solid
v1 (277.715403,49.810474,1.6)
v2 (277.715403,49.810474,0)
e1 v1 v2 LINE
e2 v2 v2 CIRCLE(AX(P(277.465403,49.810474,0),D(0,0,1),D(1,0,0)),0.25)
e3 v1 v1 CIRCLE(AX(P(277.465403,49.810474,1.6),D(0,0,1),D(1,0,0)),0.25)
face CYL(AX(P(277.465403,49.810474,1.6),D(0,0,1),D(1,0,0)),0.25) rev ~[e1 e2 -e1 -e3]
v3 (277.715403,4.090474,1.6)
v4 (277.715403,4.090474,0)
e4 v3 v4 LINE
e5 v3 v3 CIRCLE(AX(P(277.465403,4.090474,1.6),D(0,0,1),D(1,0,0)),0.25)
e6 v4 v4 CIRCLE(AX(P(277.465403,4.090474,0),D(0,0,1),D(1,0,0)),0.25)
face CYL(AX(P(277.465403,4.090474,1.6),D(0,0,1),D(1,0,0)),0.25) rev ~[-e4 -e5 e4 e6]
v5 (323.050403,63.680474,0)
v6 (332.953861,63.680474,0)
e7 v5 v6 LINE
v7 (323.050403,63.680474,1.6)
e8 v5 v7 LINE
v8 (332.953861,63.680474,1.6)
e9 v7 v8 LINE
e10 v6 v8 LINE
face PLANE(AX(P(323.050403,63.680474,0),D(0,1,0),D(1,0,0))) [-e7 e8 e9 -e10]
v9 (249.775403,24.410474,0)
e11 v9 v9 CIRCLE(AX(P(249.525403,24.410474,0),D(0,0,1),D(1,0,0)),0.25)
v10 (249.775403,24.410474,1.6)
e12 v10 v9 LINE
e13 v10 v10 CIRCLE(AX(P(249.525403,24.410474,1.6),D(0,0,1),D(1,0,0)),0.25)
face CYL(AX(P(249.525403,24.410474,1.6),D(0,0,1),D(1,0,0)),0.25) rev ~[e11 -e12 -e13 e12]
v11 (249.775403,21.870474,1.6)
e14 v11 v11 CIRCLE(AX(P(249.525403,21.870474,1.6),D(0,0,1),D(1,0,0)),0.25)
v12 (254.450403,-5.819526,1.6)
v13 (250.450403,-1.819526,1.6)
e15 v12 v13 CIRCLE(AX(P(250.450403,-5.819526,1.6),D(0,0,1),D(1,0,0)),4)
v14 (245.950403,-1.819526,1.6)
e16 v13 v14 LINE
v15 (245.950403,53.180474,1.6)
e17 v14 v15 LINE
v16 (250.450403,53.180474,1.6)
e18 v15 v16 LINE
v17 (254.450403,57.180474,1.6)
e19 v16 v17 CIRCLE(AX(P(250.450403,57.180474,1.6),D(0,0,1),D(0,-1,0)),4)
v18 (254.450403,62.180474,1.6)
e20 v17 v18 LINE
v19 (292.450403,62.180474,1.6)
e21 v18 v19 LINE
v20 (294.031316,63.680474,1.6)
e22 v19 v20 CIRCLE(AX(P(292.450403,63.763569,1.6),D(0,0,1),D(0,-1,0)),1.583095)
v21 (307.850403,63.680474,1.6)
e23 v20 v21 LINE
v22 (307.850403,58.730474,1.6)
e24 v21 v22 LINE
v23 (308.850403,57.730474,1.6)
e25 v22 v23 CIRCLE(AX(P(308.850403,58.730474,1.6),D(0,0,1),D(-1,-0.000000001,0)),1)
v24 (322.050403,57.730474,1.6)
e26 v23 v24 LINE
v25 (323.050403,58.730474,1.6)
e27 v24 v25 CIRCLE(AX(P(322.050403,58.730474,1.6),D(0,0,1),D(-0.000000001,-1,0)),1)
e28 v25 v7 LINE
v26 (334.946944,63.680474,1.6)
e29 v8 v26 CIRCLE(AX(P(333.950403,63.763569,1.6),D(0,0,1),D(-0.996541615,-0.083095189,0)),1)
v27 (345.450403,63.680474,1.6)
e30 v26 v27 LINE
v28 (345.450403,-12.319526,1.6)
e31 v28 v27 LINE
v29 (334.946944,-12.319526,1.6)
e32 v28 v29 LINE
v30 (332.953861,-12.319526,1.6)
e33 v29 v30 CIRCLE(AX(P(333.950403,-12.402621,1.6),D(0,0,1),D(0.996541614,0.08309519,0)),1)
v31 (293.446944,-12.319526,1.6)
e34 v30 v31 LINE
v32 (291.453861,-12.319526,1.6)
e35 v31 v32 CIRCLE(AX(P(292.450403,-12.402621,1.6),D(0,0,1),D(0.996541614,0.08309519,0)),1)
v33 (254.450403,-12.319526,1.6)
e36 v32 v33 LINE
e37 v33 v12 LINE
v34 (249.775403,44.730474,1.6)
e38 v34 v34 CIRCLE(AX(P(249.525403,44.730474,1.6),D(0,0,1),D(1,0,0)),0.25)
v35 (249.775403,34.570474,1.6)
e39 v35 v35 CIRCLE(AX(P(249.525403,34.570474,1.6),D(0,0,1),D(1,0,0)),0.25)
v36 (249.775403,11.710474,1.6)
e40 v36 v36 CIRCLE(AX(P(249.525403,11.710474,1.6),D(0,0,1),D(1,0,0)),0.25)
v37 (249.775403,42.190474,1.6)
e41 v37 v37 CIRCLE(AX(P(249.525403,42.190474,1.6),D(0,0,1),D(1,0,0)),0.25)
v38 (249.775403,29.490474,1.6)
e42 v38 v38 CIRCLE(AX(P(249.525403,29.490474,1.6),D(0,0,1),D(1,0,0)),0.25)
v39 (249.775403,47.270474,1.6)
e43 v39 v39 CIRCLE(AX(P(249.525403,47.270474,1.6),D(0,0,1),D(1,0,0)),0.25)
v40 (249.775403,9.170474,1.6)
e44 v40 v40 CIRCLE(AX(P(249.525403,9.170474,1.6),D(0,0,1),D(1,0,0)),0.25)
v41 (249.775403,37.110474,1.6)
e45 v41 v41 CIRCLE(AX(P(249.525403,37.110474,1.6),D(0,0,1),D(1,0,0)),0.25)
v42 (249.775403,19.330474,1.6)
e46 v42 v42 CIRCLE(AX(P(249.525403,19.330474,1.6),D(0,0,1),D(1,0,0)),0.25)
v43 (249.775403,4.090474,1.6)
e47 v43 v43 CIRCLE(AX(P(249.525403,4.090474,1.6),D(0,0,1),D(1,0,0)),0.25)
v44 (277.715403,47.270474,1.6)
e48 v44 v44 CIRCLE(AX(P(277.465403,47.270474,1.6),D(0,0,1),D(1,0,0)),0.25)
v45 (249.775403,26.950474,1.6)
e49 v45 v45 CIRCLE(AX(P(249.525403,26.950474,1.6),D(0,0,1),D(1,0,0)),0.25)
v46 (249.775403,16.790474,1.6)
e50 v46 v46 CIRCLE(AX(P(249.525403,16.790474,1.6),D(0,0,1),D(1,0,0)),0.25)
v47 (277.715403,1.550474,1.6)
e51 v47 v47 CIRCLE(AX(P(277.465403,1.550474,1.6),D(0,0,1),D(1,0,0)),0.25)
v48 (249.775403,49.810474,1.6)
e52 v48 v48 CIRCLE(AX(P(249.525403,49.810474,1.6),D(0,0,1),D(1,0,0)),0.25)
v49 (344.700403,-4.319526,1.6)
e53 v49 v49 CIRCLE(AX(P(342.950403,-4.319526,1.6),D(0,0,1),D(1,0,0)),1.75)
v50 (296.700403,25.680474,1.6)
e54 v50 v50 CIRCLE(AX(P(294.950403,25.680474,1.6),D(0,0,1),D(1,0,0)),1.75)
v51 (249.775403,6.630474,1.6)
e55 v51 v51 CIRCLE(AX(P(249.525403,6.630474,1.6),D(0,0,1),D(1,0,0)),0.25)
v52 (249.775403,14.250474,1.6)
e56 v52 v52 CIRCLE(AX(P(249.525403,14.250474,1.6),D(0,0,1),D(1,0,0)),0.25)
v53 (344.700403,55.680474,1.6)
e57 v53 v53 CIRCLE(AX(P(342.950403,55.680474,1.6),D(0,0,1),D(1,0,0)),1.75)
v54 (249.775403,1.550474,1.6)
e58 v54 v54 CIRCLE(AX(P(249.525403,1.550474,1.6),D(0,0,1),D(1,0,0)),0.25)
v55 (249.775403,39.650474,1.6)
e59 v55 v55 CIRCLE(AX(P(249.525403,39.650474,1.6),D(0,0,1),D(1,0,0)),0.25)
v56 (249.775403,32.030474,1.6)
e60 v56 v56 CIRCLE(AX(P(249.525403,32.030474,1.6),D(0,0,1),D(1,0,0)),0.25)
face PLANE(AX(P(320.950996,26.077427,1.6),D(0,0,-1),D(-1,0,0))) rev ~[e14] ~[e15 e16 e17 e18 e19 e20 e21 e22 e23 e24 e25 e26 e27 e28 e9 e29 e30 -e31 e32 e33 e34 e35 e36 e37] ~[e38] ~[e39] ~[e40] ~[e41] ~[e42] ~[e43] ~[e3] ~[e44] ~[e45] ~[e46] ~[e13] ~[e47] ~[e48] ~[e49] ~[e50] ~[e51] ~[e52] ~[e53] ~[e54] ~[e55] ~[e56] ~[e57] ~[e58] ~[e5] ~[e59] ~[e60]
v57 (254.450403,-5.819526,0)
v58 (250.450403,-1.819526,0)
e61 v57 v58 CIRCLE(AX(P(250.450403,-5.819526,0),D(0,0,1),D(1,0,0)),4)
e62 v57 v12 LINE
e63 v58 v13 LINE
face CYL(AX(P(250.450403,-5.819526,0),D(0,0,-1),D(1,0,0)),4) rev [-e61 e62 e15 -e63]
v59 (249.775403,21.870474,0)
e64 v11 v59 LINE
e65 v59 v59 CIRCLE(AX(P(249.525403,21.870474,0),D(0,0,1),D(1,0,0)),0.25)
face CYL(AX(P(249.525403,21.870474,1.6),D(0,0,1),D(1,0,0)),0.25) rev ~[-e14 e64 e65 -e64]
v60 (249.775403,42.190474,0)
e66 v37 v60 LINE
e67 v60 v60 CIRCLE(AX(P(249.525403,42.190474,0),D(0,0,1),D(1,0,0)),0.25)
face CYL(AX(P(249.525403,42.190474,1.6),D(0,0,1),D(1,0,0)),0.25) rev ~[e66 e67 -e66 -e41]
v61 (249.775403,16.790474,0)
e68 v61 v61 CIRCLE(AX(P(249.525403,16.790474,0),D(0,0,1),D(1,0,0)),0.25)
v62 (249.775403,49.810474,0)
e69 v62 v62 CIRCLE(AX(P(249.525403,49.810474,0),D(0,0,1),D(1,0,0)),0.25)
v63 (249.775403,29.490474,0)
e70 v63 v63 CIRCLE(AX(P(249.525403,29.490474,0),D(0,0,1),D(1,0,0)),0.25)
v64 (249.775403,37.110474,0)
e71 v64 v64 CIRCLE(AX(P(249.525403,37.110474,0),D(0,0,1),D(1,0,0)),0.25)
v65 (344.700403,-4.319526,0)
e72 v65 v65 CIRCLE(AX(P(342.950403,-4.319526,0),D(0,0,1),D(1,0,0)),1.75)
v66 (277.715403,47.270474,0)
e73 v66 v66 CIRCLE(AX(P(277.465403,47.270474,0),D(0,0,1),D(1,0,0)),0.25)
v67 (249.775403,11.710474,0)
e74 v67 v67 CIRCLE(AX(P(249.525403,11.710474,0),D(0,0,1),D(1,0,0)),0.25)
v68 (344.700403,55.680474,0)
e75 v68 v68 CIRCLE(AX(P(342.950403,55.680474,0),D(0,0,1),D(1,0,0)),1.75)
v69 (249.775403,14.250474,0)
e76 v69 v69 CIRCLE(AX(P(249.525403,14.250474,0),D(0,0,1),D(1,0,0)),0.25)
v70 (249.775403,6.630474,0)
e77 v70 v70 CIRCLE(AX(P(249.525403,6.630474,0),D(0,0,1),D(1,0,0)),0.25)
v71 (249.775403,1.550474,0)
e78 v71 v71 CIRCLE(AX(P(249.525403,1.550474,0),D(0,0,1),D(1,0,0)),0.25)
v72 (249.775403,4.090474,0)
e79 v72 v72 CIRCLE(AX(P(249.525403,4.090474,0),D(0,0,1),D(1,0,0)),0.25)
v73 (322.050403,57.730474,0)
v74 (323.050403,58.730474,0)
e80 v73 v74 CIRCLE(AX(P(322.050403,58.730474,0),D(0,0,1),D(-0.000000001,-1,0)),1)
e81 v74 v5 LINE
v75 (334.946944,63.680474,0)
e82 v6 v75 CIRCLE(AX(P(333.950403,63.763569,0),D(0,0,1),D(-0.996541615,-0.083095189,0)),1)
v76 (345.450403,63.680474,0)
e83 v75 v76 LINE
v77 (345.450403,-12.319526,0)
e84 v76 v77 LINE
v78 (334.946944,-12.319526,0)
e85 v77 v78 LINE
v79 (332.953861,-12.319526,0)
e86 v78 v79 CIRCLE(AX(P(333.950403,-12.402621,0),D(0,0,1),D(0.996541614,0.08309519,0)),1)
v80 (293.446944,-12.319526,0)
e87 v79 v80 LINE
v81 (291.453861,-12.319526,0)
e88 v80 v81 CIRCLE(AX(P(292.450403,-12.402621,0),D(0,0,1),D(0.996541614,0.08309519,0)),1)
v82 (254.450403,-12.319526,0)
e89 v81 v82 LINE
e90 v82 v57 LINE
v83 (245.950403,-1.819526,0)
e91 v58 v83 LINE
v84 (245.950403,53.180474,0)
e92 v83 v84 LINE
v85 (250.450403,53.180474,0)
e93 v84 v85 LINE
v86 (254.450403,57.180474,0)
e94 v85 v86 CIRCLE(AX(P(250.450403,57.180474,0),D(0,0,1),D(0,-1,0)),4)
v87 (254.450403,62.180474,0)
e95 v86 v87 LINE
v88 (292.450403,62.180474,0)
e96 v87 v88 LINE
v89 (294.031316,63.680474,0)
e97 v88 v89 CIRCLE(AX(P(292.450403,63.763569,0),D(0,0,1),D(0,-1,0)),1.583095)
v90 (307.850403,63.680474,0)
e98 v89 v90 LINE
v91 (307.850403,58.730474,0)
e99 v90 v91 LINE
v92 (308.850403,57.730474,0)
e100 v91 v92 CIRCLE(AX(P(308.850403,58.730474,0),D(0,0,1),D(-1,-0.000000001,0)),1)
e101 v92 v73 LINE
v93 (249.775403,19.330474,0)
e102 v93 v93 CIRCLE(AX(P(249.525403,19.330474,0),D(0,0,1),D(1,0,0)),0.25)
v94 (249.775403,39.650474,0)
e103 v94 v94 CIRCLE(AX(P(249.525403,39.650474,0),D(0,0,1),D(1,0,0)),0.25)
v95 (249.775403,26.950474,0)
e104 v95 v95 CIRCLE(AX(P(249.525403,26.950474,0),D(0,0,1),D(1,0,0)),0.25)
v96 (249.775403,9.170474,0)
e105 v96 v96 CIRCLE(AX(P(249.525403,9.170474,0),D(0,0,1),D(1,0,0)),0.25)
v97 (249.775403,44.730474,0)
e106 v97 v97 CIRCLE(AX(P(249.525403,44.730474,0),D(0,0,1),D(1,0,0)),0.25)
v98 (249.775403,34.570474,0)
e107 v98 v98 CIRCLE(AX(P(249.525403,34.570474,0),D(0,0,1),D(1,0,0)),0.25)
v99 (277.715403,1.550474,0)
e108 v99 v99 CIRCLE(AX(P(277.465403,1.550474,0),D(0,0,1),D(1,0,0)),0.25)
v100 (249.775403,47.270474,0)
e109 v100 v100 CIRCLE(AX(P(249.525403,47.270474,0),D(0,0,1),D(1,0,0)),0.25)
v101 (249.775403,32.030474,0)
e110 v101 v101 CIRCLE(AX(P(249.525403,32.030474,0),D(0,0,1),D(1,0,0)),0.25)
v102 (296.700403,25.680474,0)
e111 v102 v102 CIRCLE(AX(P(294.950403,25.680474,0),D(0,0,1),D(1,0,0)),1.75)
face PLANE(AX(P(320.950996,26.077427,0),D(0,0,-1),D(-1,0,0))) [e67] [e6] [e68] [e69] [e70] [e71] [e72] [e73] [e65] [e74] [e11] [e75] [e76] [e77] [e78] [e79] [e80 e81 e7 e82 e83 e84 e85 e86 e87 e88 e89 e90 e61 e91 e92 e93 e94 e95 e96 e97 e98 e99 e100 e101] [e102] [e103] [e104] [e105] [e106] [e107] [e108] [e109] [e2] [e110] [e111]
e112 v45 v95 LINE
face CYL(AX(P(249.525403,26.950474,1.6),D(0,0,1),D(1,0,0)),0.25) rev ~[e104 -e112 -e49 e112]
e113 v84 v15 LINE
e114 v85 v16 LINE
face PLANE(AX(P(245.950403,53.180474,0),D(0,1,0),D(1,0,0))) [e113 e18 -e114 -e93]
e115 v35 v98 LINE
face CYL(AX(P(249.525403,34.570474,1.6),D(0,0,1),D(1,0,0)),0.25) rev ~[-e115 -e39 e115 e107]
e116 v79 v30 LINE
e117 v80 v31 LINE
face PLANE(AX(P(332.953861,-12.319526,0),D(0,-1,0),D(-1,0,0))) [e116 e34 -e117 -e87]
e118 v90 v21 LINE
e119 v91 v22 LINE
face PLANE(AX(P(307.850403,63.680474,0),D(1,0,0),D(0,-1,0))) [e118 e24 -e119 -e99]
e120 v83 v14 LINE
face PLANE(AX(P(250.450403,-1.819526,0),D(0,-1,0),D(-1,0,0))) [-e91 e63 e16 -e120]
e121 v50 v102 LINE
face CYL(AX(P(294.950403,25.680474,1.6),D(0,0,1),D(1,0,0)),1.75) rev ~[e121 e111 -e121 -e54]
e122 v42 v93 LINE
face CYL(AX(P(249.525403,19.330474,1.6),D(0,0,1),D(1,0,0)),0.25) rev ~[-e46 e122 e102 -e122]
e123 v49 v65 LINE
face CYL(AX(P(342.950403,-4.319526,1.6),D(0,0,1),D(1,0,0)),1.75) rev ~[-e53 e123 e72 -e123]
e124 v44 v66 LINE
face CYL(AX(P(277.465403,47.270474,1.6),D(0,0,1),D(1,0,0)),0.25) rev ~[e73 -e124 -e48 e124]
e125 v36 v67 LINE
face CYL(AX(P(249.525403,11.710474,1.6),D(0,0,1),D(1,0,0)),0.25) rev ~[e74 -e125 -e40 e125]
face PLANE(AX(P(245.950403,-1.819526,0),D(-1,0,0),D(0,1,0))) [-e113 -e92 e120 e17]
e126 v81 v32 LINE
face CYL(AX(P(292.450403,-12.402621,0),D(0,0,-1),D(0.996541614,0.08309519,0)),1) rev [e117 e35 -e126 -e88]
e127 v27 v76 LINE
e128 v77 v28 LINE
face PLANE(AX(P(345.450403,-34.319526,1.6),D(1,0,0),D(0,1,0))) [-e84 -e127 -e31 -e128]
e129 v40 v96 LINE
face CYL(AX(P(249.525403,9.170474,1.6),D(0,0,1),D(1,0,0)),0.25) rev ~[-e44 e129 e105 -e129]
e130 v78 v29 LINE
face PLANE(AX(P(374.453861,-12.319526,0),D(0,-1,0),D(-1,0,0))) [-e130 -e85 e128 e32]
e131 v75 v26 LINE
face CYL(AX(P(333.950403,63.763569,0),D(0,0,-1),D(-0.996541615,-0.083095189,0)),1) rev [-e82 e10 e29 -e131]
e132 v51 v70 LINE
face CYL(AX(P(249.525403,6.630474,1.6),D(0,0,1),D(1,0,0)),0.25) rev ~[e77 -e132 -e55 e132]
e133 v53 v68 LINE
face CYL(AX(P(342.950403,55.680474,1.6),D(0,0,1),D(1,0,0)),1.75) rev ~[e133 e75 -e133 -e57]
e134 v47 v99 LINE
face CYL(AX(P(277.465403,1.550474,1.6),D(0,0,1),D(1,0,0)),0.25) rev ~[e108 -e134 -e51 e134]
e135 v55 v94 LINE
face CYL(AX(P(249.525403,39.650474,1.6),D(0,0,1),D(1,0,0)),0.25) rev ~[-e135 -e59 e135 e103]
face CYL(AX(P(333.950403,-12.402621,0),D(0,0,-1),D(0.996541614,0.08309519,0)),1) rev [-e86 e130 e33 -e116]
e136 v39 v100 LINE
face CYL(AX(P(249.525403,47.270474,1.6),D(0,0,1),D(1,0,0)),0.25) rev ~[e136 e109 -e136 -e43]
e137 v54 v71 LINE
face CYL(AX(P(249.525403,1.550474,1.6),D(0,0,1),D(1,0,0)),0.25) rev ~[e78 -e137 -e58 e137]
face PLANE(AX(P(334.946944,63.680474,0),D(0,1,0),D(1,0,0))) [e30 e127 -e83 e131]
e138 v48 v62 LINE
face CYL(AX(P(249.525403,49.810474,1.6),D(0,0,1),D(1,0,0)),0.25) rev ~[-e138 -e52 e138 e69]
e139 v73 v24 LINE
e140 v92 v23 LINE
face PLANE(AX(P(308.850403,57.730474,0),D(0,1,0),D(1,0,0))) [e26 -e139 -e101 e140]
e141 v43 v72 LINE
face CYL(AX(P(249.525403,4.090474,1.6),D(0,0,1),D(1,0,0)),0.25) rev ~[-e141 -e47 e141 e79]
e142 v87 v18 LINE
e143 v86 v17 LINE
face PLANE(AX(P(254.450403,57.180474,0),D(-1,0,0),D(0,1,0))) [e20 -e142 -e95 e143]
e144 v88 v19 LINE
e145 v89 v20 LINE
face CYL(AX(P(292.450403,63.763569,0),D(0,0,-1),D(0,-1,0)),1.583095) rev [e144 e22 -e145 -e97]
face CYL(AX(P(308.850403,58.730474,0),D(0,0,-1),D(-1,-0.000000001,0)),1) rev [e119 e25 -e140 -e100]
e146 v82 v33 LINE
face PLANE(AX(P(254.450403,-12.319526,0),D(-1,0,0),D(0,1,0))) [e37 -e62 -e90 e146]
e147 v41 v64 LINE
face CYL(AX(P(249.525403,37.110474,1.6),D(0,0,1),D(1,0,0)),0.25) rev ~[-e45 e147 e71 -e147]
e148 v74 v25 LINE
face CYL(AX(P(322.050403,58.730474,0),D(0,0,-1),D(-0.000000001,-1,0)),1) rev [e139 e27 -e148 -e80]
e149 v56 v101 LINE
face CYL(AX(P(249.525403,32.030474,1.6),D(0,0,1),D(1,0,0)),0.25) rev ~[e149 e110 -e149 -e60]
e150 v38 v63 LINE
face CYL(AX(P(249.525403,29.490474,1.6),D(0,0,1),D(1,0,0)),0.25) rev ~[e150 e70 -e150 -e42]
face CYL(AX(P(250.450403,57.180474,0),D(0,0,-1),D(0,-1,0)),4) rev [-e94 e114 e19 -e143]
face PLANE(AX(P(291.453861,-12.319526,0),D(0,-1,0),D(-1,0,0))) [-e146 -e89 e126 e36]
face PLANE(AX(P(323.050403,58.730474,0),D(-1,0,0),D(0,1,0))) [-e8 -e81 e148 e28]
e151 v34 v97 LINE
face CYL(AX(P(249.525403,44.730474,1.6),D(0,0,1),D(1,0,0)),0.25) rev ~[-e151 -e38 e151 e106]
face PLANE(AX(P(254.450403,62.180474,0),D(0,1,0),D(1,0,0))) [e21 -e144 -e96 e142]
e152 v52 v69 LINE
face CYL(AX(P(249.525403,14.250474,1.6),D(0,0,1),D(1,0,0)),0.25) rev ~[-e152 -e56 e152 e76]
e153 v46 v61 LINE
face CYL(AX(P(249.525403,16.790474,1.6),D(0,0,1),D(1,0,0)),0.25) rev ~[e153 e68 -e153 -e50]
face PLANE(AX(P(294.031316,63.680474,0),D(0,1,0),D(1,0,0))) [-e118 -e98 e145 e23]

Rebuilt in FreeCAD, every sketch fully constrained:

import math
import FreeCAD as App
import Part
import Sketcher
from FreeCAD import Vector


def add_polygon(sketch, points):
    """Adds a closed chain of lines whose ends are joined by coincident constraints."""
    first, n = sketch.GeometryCount, len(points)
    for a, b in zip(points, points[1:] + points[:1]):
        sketch.addGeometry(Part.LineSegment(App.Vector(*a, 0), App.Vector(*b, 0)), False)
    for i in range(n):
        sketch.addConstraint(Sketcher.Constraint("Coincident", first + i, 2, first + (i + 1) % n, 1))

doc = App.newDocument("Part")
body = doc.addObject("PartDesign::Body", "Body")

sketch1 = doc.addObject("Sketcher::SketchObject", "Sketch")
body.addObject(sketch1)
sketch1.AttachmentSupport = (doc.XY_Plane, [""])
sketch1.MapMode = "FlatFace"
sketch1.addGeometry(Part.LineSegment(Vector(254.5, 62.2, 0), Vector(254.5, 57.2, 0)), False)
sketch1.addGeometry(Part.ArcOfCircle(Part.Circle(Vector(250.5, 57.2, 0), Vector(0, 0, 1), 4), math.radians(-90), math.radians(0)), False)
sketch1.addGeometry(Part.LineSegment(Vector(250.5, 53.2, 0), Vector(246, 53.2, 0)), False)
sketch1.addGeometry(Part.LineSegment(Vector(246, 53.2, 0), Vector(246, -1.8, 0)), False)
sketch1.addGeometry(Part.LineSegment(Vector(246, -1.8, 0), Vector(250.5, -1.8, 0)), False)
sketch1.addGeometry(Part.ArcOfCircle(Part.Circle(Vector(250.5, -5.8, 0), Vector(0, 0, 1), 4), math.radians(0), math.radians(90)), False)
sketch1.addGeometry(Part.LineSegment(Vector(254.5, -5.8, 0), Vector(254.5, -12.3, 0)), False)
sketch1.addGeometry(Part.LineSegment(Vector(254.5, -12.3, 0), Vector(291.5, -12.3, 0)), False)
sketch1.addGeometry(Part.ArcOfCircle(Part.Circle(Vector(292.5, -12.4, 0), Vector(0, 0, 1), 1), math.radians(5), math.radians(175)), False)
sketch1.addGeometry(Part.LineSegment(Vector(293.4, -12.3, 0), Vector(333, -12.3, 0)), False)
sketch1.addGeometry(Part.ArcOfCircle(Part.Circle(Vector(334, -12.4, 0), Vector(0, 0, 1), 1), math.radians(5), math.radians(175)), False)
sketch1.addGeometry(Part.LineSegment(Vector(334.9, -12.3, 0), Vector(374.5, -12.3, 0)), False)
sketch1.addGeometry(Part.ArcOfCircle(Part.Circle(Vector(375.5, -12.4, 0), Vector(0, 0, 1), 1), math.radians(5), math.radians(175)), False)
sketch1.addGeometry(Part.LineSegment(Vector(376.4, -12.3, 0), Vector(391, -12.3, 0)), False)
sketch1.addGeometry(Part.ArcOfCircle(Part.Circle(Vector(391, -9.3, 0), Vector(0, 0, 1), 3), math.radians(-90), math.radians(0)), False)
sketch1.addGeometry(Part.LineSegment(Vector(394, -9.3, 0), Vector(394, -6.8, 0)), False)
sketch1.addGeometry(Part.ArcOfCircle(Part.Circle(Vector(394, -5.8, 0), Vector(0, 0, 1), 1), math.radians(95), math.radians(265)), False)
sketch1.addGeometry(Part.LineSegment(Vector(394, -4.8, 0), Vector(394, 56.2, 0)), False)
sketch1.addGeometry(Part.ArcOfCircle(Part.Circle(Vector(394, 57.2, 0), Vector(0, 0, 1), 1), math.radians(95), math.radians(265)), False)
sketch1.addGeometry(Part.LineSegment(Vector(394, 58.2, 0), Vector(394, 60.7, 0)), False)
sketch1.addGeometry(Part.ArcOfCircle(Part.Circle(Vector(391, 60.7, 0), Vector(0, 0, 1), 3), math.radians(0), math.radians(90)), False)
sketch1.addGeometry(Part.LineSegment(Vector(391, 63.7, 0), Vector(376.4, 63.7, 0)), False)
sketch1.addGeometry(Part.ArcOfCircle(Part.Circle(Vector(375.5, 63.8, 0), Vector(0, 0, 1), 1), math.radians(-175), math.radians(-5)), False)
sketch1.addGeometry(Part.LineSegment(Vector(374.5, 63.7, 0), Vector(334.9, 63.7, 0)), False)
sketch1.addGeometry(Part.ArcOfCircle(Part.Circle(Vector(334, 63.8, 0), Vector(0, 0, 1), 1), math.radians(-175), math.radians(-5)), False)
sketch1.addGeometry(Part.LineSegment(Vector(333, 63.7, 0), Vector(323.1, 63.7, 0)), False)
sketch1.addGeometry(Part.LineSegment(Vector(323.1, 63.7, 0), Vector(323.1, 58.7, 0)), False)
sketch1.addGeometry(Part.ArcOfCircle(Part.Circle(Vector(322.1, 58.7, 0), Vector(0, 0, 1), 1), math.radians(-90), math.radians(0)), False)
sketch1.addGeometry(Part.LineSegment(Vector(322.1, 57.7, 0), Vector(308.9, 57.7, 0)), False)
sketch1.addGeometry(Part.ArcOfCircle(Part.Circle(Vector(308.9, 58.7, 0), Vector(0, 0, 1), 1), math.radians(-180), math.radians(-90)), False)
sketch1.addGeometry(Part.LineSegment(Vector(307.9, 58.7, 0), Vector(307.9, 63.7, 0)), False)
sketch1.addGeometry(Part.LineSegment(Vector(307.9, 63.7, 0), Vector(294, 63.7, 0)), False)
sketch1.addGeometry(Part.ArcOfCircle(Part.Circle(Vector(292.5, 63.8, 0), Vector(0, 0, 1), 1.6), math.radians(-90), math.radians(-3)), False)
sketch1.addGeometry(Part.LineSegment(Vector(292.5, 62.2, 0), Vector(254.5, 62.2, 0)), False)
sketch1.addConstraint(Sketcher.Constraint("Tangent", 0, 2, 1, 2))
sketch1.addConstraint(Sketcher.Constraint("Tangent", 1, 1, 2, 1))
sketch1.addConstraint(Sketcher.Constraint("Coincident", 2, 2, 3, 1))
sketch1.addConstraint(Sketcher.Constraint("Coincident", 3, 2, 4, 1))
sketch1.addConstraint(Sketcher.Constraint("Tangent", 4, 2, 5, 2))
sketch1.addConstraint(Sketcher.Constraint("Tangent", 5, 1, 6, 1))
sketch1.addConstraint(Sketcher.Constraint("Coincident", 6, 2, 7, 1))
sketch1.addConstraint(Sketcher.Constraint("Coincident", 7, 2, 8, 2))
sketch1.addConstraint(Sketcher.Constraint("Coincident", 8, 1, 9, 1))
sketch1.addConstraint(Sketcher.Constraint("Coincident", 9, 2, 10, 2))
sketch1.addConstraint(Sketcher.Constraint("Coincident", 10, 1, 11, 1))
sketch1.addConstraint(Sketcher.Constraint("Coincident", 11, 2, 12, 2))
sketch1.addConstraint(Sketcher.Constraint("Coincident", 12, 1, 13, 1))
sketch1.addConstraint(Sketcher.Constraint("Tangent", 13, 2, 14, 1))
sketch1.addConstraint(Sketcher.Constraint("Tangent", 14, 2, 15, 1))
sketch1.addConstraint(Sketcher.Constraint("Coincident", 15, 2, 16, 2))
sketch1.addConstraint(Sketcher.Constraint("Coincident", 16, 1, 17, 1))
sketch1.addConstraint(Sketcher.Constraint("Coincident", 17, 2, 18, 2))
sketch1.addConstraint(Sketcher.Constraint("Coincident", 18, 1, 19, 1))
sketch1.addConstraint(Sketcher.Constraint("Tangent", 19, 2, 20, 1))
sketch1.addConstraint(Sketcher.Constraint("Tangent", 20, 2, 21, 1))
sketch1.addConstraint(Sketcher.Constraint("Coincident", 21, 2, 22, 2))
sketch1.addConstraint(Sketcher.Constraint("Coincident", 22, 1, 23, 1))
sketch1.addConstraint(Sketcher.Constraint("Coincident", 23, 2, 24, 2))
sketch1.addConstraint(Sketcher.Constraint("Coincident", 24, 1, 25, 1))
sketch1.addConstraint(Sketcher.Constraint("Coincident", 25, 2, 26, 1))
sketch1.addConstraint(Sketcher.Constraint("Tangent", 26, 2, 27, 2))
sketch1.addConstraint(Sketcher.Constraint("Tangent", 27, 1, 28, 1))
sketch1.addConstraint(Sketcher.Constraint("Tangent", 28, 2, 29, 2))
sketch1.addConstraint(Sketcher.Constraint("Tangent", 29, 1, 30, 1))
sketch1.addConstraint(Sketcher.Constraint("Coincident", 30, 2, 31, 1))
sketch1.addConstraint(Sketcher.Constraint("Coincident", 31, 2, 32, 2))
sketch1.addConstraint(Sketcher.Constraint("Tangent", 32, 1, 33, 1))
sketch1.addConstraint(Sketcher.Constraint("Coincident", 33, 2, 0, 1))
sketch1.addConstraint(Sketcher.Constraint("Vertical", 0))
sketch1.addConstraint(Sketcher.Constraint("Horizontal", 2))
sketch1.addConstraint(Sketcher.Constraint("Vertical", 3))
sketch1.addConstraint(Sketcher.Constraint("Horizontal", 4))
sketch1.addConstraint(Sketcher.Constraint("Vertical", 6))
sketch1.addConstraint(Sketcher.Constraint("Horizontal", 7))
sketch1.addConstraint(Sketcher.Constraint("Horizontal", 9))
sketch1.addConstraint(Sketcher.Constraint("Horizontal", 11))
sketch1.addConstraint(Sketcher.Constraint("Horizontal", 13))
sketch1.addConstraint(Sketcher.Constraint("Vertical", 15))
sketch1.addConstraint(Sketcher.Constraint("Vertical", 17))
sketch1.addConstraint(Sketcher.Constraint("Vertical", 19))
sketch1.addConstraint(Sketcher.Constraint("Horizontal", 21))
sketch1.addConstraint(Sketcher.Constraint("Horizontal", 23))
sketch1.addConstraint(Sketcher.Constraint("Horizontal", 25))
sketch1.addConstraint(Sketcher.Constraint("Vertical", 26))
sketch1.addConstraint(Sketcher.Constraint("Horizontal", 28))
sketch1.addConstraint(Sketcher.Constraint("Vertical", 30))
sketch1.addConstraint(Sketcher.Constraint("Horizontal", 31))
sketch1.addConstraint(Sketcher.Constraint("Horizontal", 33))
sketch1.addConstraint(Sketcher.Constraint("Equal", 1, 5))
sketch1.addConstraint(Sketcher.Constraint("Equal", 8, 10))
sketch1.addConstraint(Sketcher.Constraint("Equal", 10, 12))
sketch1.addConstraint(Sketcher.Constraint("Equal", 12, 16))
sketch1.addConstraint(Sketcher.Constraint("Equal", 16, 18))
sketch1.addConstraint(Sketcher.Constraint("Equal", 14, 20))
sketch1.addConstraint(Sketcher.Constraint("Equal", 18, 22))
sketch1.addConstraint(Sketcher.Constraint("Equal", 22, 24))
sketch1.addConstraint(Sketcher.Constraint("Equal", 24, 27))
sketch1.addConstraint(Sketcher.Constraint("Equal", 27, 29))
sketch1.addConstraint(Sketcher.Constraint("Horizontal", 8, 3, 10, 3))
sketch1.addConstraint(Sketcher.Constraint("Horizontal", 10, 3, 12, 3))
sketch1.addConstraint(Sketcher.Constraint("Horizontal", 5, 3, 16, 3))
sketch1.addConstraint(Sketcher.Constraint("Horizontal", 1, 3, 18, 3))
sketch1.addConstraint(Sketcher.Constraint("Horizontal", 22, 3, 24, 3))
sketch1.addConstraint(Sketcher.Constraint("Horizontal", 24, 3, 32, 3))
sketch1.addConstraint(Sketcher.Constraint("Horizontal", 7, 2, 8, 1))
sketch1.addConstraint(Sketcher.Constraint("Horizontal", 9, 2, 10, 1))
sketch1.addConstraint(Sketcher.Constraint("Horizontal", 11, 2, 12, 1))
sketch1.addConstraint(Sketcher.Constraint("Horizontal", 21, 2, 22, 1))
sketch1.addConstraint(Sketcher.Constraint("Horizontal", 23, 2, 24, 1))
sketch1.addConstraint(Sketcher.Constraint("Horizontal", 25, 2, 30, 2))
sketch1.addConstraint(Sketcher.Constraint("Vertical", 1, 3, 5, 3))
sketch1.addConstraint(Sketcher.Constraint("Vertical", 16, 3, 18, 3))
sketch1.addConstraint(Sketcher.Constraint("Vertical", 14, 3, 20, 3))
sketch1.addConstraint(Sketcher.Constraint("Vertical", 12, 3, 22, 3))
sketch1.addConstraint(Sketcher.Constraint("Vertical", 10, 3, 24, 3))
sketch1.addConstraint(Sketcher.Constraint("Vertical", 8, 3, 32, 3))
sketch1.addConstraint(Sketcher.Constraint("Vertical", 15, 2, 16, 1))
sketch1.addConstraint(Sketcher.Constraint("Vertical", 12, 1, 21, 2))
sketch1.addConstraint(Sketcher.Constraint("Equal", 9, 11))
sketch1.addConstraint(Sketcher.Constraint("Equal", 15, 19))
sketch1.addConstraint(Sketcher.Constraint("Radius", 1, 4.0))
sketch1.addConstraint(Sketcher.Constraint("Radius", 8, 1.0))
sketch1.addConstraint(Sketcher.Constraint("Radius", 14, 3.0))
sketch1.addConstraint(Sketcher.Constraint("DistanceX", 33, 2, 33, 1, 38.0))
sketch1.addConstraint(Sketcher.Constraint("DistanceY", 0, 2, 0, 1, 5.0))
sketch1.addConstraint(Sketcher.Constraint("DistanceY", 3, 2, 3, 1, 55.0))
sketch1.addConstraint(Sketcher.Constraint("DistanceX", 2, 2, 2, 1, 4.5))
sketch1.addConstraint(Sketcher.Constraint("DistanceX", 28, 2, 28, 1, 13.2))
sketch1.addConstraint(Sketcher.Constraint("DistanceY", 6, 2, 6, 1, 6.5))
sketch1.addConstraint(Sketcher.Constraint("DistanceX", 8, 3, 12, 3, 83.0))
sketch1.addConstraint(Sketcher.Constraint("DistanceX", 10, 3, 14, 3, 57.0))
sketch1.addConstraint(Sketcher.Constraint("DistanceY", 26, 2, 26, 1, 4.95))
sketch1.addConstraint(Sketcher.Constraint("DistanceX", 27, 3, 24, 3, 11.9))
sketch1.addConstraint(Sketcher.Constraint("Radius", 32, 1.583095))
sketch1.addConstraint(Sketcher.Constraint("DistanceY", 15, 1, 15, 2, 2.503458))
sketch1.addConstraint(Sketcher.Constraint("DistanceY", 8, 3, -1, 1, 12.402621))
sketch1.addConstraint(Sketcher.Constraint("DistanceX", -1, 1, 7, 2, 291.453861))
pad1 = doc.addObject("PartDesign::Pad", "Pad")
body.addObject(pad1)
pad1.Profile = sketch1
pad1.Length = 1.6

sketch2 = doc.addObject("Sketcher::SketchObject", "Sketch001")
body.addObject(sketch2)
sketch2.AttachmentSupport = (doc.XY_Plane, [""])
sketch2.MapMode = "FlatFace"
sketch2.AttachmentOffset = App.Placement(Vector(0, 0, 1.6), App.Rotation())
sketch2.addGeometry(Part.Circle(Vector(375.5, -5.8, 0), Vector(0, 0, 1), 4), False)
sketch2.addGeometry(Part.Circle(Vector(343, -4.3, 0), Vector(0, 0, 1), 1.8), False)
sketch2.addGeometry(Part.Circle(Vector(295, 25.7, 0), Vector(0, 0, 1), 1.8), False)
sketch2.addGeometry(Part.Circle(Vector(343, 55.7, 0), Vector(0, 0, 1), 1.8), False)
sketch2.addGeometry(Part.Circle(Vector(375.5, 57.2, 0), Vector(0, 0, 1), 4), False)
sketch2.addConstraint(Sketcher.Constraint("Equal", 1, 2))
sketch2.addConstraint(Sketcher.Constraint("Equal", 2, 3))
sketch2.addConstraint(Sketcher.Constraint("Equal", 0, 4))
sketch2.addConstraint(Sketcher.Constraint("Vertical", 1, 3, 3, 3))
sketch2.addConstraint(Sketcher.Constraint("Vertical", 0, 3, 4, 3))
sketch2.addConstraint(Sketcher.Constraint("Diameter", 0, 8.0))
sketch2.addConstraint(Sketcher.Constraint("Diameter", 1, 3.5))
sketch2.addConstraint(Sketcher.Constraint("DistanceX", 2, 3, 1, 3, 48.0))
sketch2.addConstraint(Sketcher.Constraint("DistanceY", 1, 3, 2, 3, 30.0))
sketch2.addConstraint(Sketcher.Constraint("DistanceY", 2, 3, 3, 3, 30.0))
sketch2.addConstraint(Sketcher.Constraint("DistanceY", 0, 3, 4, 3, 63.0))
sketch2.addConstraint(Sketcher.Constraint("DistanceX", 1, 3, 0, 3, 32.5))
sketch2.addConstraint(Sketcher.Constraint("DistanceY", 0, 3, 1, 3, 1.5))
sketch2.addConstraint(Sketcher.Constraint("DistanceX", -1, 1, 0, 3, 375.450403))
sketch2.addConstraint(Sketcher.Constraint("DistanceY", 0, 3, -1, 1, 5.819526))
pocket1 = doc.addObject("PartDesign::Pocket", "Pocket")
body.addObject(pocket1)
pocket1.Profile = sketch2
pocket1.Type = "ThroughAll"
pocket1.Midplane = True

sketch3 = doc.addObject("Sketcher::SketchObject", "Sketch002")
body.addObject(sketch3)
sketch3.AttachmentSupport = (doc.XY_Plane, [""])
sketch3.MapMode = "FlatFace"
sketch3.AttachmentOffset = App.Placement(Vector(0, 0, 1.6), App.Rotation())
add_polygon(sketch3, [(345, 86), (345, -34), (395, -34), (395, 86)])
sketch3.addConstraint(Sketcher.Constraint("Vertical", 0))
sketch3.addConstraint(Sketcher.Constraint("Horizontal", 1))
sketch3.addConstraint(Sketcher.Constraint("Vertical", 2))
sketch3.addConstraint(Sketcher.Constraint("Horizontal", 3))
sketch3.addConstraint(Sketcher.Constraint("DistanceX", 1, 1, 1, 2, 50.0))
sketch3.addConstraint(Sketcher.Constraint("DistanceY", 0, 2, 0, 1, 120.0))
sketch3.addConstraint(Sketcher.Constraint("DistanceX", -1, 1, 0, 2, 345.450403))
sketch3.addConstraint(Sketcher.Constraint("DistanceY", 0, 2, -1, 1, 34.319526))
pocket2 = doc.addObject("PartDesign::Pocket", "Pocket001")
body.addObject(pocket2)
pocket2.Profile = sketch3
pocket2.Type = "ThroughAll"

sketch4 = doc.addObject("Sketcher::SketchObject", "Sketch003")
body.addObject(sketch4)
sketch4.AttachmentSupport = (doc.XY_Plane, [""])
sketch4.MapMode = "FlatFace"
sketch4.AttachmentOffset = App.Placement(Vector(0, 0, 1.6), App.Rotation())
sketch4.addGeometry(Part.Circle(Vector(249.53, 49.81, 0), Vector(0, 0, 1), 0.25), False)
sketch4.addGeometry(Part.Circle(Vector(277.47, 49.81, 0), Vector(0, 0, 1), 0.25), False)
sketch4.addGeometry(Part.Circle(Vector(277.47, 47.27, 0), Vector(0, 0, 1), 0.25), False)
sketch4.addGeometry(Part.Circle(Vector(277.47, 4.09, 0), Vector(0, 0, 1), 0.25), False)
sketch4.addGeometry(Part.Circle(Vector(277.47, 1.55, 0), Vector(0, 0, 1), 0.25), False)
sketch4.addGeometry(Part.Circle(Vector(249.53, 1.55, 0), Vector(0, 0, 1), 0.25), False)
sketch4.addGeometry(Part.Circle(Vector(249.53, 4.09, 0), Vector(0, 0, 1), 0.25), False)
sketch4.addGeometry(Part.Circle(Vector(249.53, 6.63, 0), Vector(0, 0, 1), 0.25), False)
sketch4.addGeometry(Part.Circle(Vector(249.53, 9.17, 0), Vector(0, 0, 1), 0.25), False)
sketch4.addGeometry(Part.Circle(Vector(249.53, 11.71, 0), Vector(0, 0, 1), 0.25), False)
sketch4.addGeometry(Part.Circle(Vector(249.53, 14.25, 0), Vector(0, 0, 1), 0.25), False)
sketch4.addGeometry(Part.Circle(Vector(249.53, 16.79, 0), Vector(0, 0, 1), 0.25), False)
sketch4.addGeometry(Part.Circle(Vector(249.53, 19.33, 0), Vector(0, 0, 1), 0.25), False)
sketch4.addGeometry(Part.Circle(Vector(249.53, 21.87, 0), Vector(0, 0, 1), 0.25), False)
sketch4.addGeometry(Part.Circle(Vector(249.53, 24.41, 0), Vector(0, 0, 1), 0.25), False)
sketch4.addGeometry(Part.Circle(Vector(249.53, 26.95, 0), Vector(0, 0, 1), 0.25), False)
sketch4.addGeometry(Part.Circle(Vector(249.53, 29.49, 0), Vector(0, 0, 1), 0.25), False)
sketch4.addGeometry(Part.Circle(Vector(249.53, 32.03, 0), Vector(0, 0, 1), 0.25), False)
sketch4.addGeometry(Part.Circle(Vector(249.53, 34.57, 0), Vector(0, 0, 1), 0.25), False)
sketch4.addGeometry(Part.Circle(Vector(249.53, 37.11, 0), Vector(0, 0, 1), 0.25), False)
sketch4.addGeometry(Part.Circle(Vector(249.53, 39.65, 0), Vector(0, 0, 1), 0.25), False)
sketch4.addGeometry(Part.Circle(Vector(249.53, 42.19, 0), Vector(0, 0, 1), 0.25), False)
sketch4.addGeometry(Part.Circle(Vector(249.53, 44.73, 0), Vector(0, 0, 1), 0.25), False)
sketch4.addGeometry(Part.Circle(Vector(249.53, 47.27, 0), Vector(0, 0, 1), 0.25), False)
sketch4.addConstraint(Sketcher.Constraint("Equal", 0, 1))
sketch4.addConstraint(Sketcher.Constraint("Equal", 1, 2))
sketch4.addConstraint(Sketcher.Constraint("Equal", 2, 3))
sketch4.addConstraint(Sketcher.Constraint("Equal", 3, 4))
sketch4.addConstraint(Sketcher.Constraint("Equal", 4, 5))
sketch4.addConstraint(Sketcher.Constraint("Equal", 5, 6))
sketch4.addConstraint(Sketcher.Constraint("Equal", 6, 7))
sketch4.addConstraint(Sketcher.Constraint("Equal", 7, 8))
sketch4.addConstraint(Sketcher.Constraint("Equal", 8, 9))
sketch4.addConstraint(Sketcher.Constraint("Equal", 9, 10))
sketch4.addConstraint(Sketcher.Constraint("Equal", 10, 11))
sketch4.addConstraint(Sketcher.Constraint("Equal", 11, 12))
sketch4.addConstraint(Sketcher.Constraint("Equal", 12, 13))
sketch4.addConstraint(Sketcher.Constraint("Equal", 13, 14))
sketch4.addConstraint(Sketcher.Constraint("Equal", 14, 15))
sketch4.addConstraint(Sketcher.Constraint("Equal", 15, 16))
sketch4.addConstraint(Sketcher.Constraint("Equal", 16, 17))
sketch4.addConstraint(Sketcher.Constraint("Equal", 17, 18))
sketch4.addConstraint(Sketcher.Constraint("Equal", 18, 19))
sketch4.addConstraint(Sketcher.Constraint("Equal", 19, 20))
sketch4.addConstraint(Sketcher.Constraint("Equal", 20, 21))
sketch4.addConstraint(Sketcher.Constraint("Equal", 21, 22))
sketch4.addConstraint(Sketcher.Constraint("Equal", 22, 23))
sketch4.addConstraint(Sketcher.Constraint("Horizontal", 0, 3, 1, 3))
sketch4.addConstraint(Sketcher.Constraint("Horizontal", 4, 3, 5, 3))
sketch4.addConstraint(Sketcher.Constraint("Horizontal", 3, 3, 6, 3))
sketch4.addConstraint(Sketcher.Constraint("Horizontal", 2, 3, 23, 3))
sketch4.addConstraint(Sketcher.Constraint("Vertical", 1, 3, 2, 3))
sketch4.addConstraint(Sketcher.Constraint("Vertical", 2, 3, 3, 3))
sketch4.addConstraint(Sketcher.Constraint("Vertical", 3, 3, 4, 3))
sketch4.addConstraint(Sketcher.Constraint("Vertical", 0, 3, 5, 3))
sketch4.addConstraint(Sketcher.Constraint("Vertical", 5, 3, 6, 3))
sketch4.addConstraint(Sketcher.Constraint("Vertical", 6, 3, 7, 3))
sketch4.addConstraint(Sketcher.Constraint("Vertical", 7, 3, 8, 3))
sketch4.addConstraint(Sketcher.Constraint("Vertical", 8, 3, 9, 3))
sketch4.addConstraint(Sketcher.Constraint("Vertical", 9, 3, 10, 3))
sketch4.addConstraint(Sketcher.Constraint("Vertical", 10, 3, 11, 3))
sketch4.addConstraint(Sketcher.Constraint("Vertical", 11, 3, 12, 3))
sketch4.addConstraint(Sketcher.Constraint("Vertical", 12, 3, 13, 3))
sketch4.addConstraint(Sketcher.Constraint("Vertical", 13, 3, 14, 3))
sketch4.addConstraint(Sketcher.Constraint("Vertical", 14, 3, 15, 3))
sketch4.addConstraint(Sketcher.Constraint("Vertical", 15, 3, 16, 3))
sketch4.addConstraint(Sketcher.Constraint("Vertical", 16, 3, 17, 3))
sketch4.addConstraint(Sketcher.Constraint("Vertical", 17, 3, 18, 3))
sketch4.addConstraint(Sketcher.Constraint("Vertical", 18, 3, 19, 3))
sketch4.addConstraint(Sketcher.Constraint("Vertical", 19, 3, 20, 3))
sketch4.addConstraint(Sketcher.Constraint("Vertical", 20, 3, 21, 3))
sketch4.addConstraint(Sketcher.Constraint("Vertical", 21, 3, 22, 3))
sketch4.addConstraint(Sketcher.Constraint("Vertical", 22, 3, 23, 3))
sketch4.addConstraint(Sketcher.Constraint("Diameter", 0, 0.5))
sketch4.addConstraint(Sketcher.Constraint("DistanceY", 5, 3, 10, 3, 12.7))
sketch4.addConstraint(Sketcher.Constraint("DistanceY", 6, 3, 11, 3, 12.7))
sketch4.addConstraint(Sketcher.Constraint("DistanceY", 7, 3, 12, 3, 12.7))
sketch4.addConstraint(Sketcher.Constraint("DistanceY", 8, 3, 13, 3, 12.7))
sketch4.addConstraint(Sketcher.Constraint("DistanceY", 9, 3, 14, 3, 12.7))
sketch4.addConstraint(Sketcher.Constraint("DistanceY", 10, 3, 15, 3, 12.7))
sketch4.addConstraint(Sketcher.Constraint("DistanceY", 11, 3, 16, 3, 12.7))
sketch4.addConstraint(Sketcher.Constraint("DistanceY", 12, 3, 17, 3, 12.7))
sketch4.addConstraint(Sketcher.Constraint("DistanceY", 13, 3, 18, 3, 12.7))
sketch4.addConstraint(Sketcher.Constraint("DistanceY", 14, 3, 19, 3, 12.7))
sketch4.addConstraint(Sketcher.Constraint("DistanceX", 0, 3, 1, 3, 27.94))
sketch4.addConstraint(Sketcher.Constraint("DistanceY", 2, 3, 1, 3, 2.54))
sketch4.addConstraint(Sketcher.Constraint("DistanceY", 3, 3, 2, 3, 43.18))
sketch4.addConstraint(Sketcher.Constraint("DistanceY", 4, 3, 3, 3, 2.54))
sketch4.addConstraint(Sketcher.Constraint("DistanceY", 6, 3, 7, 3, 2.54))
sketch4.addConstraint(Sketcher.Constraint("DistanceY", 7, 3, 8, 3, 2.54))
sketch4.addConstraint(Sketcher.Constraint("DistanceY", 8, 3, 9, 3, 2.54))
sketch4.addConstraint(Sketcher.Constraint("DistanceY", 19, 3, 20, 3, 2.54))
sketch4.addConstraint(Sketcher.Constraint("DistanceY", 20, 3, 21, 3, 2.54))
sketch4.addConstraint(Sketcher.Constraint("DistanceY", 21, 3, 22, 3, 2.54))
sketch4.addConstraint(Sketcher.Constraint("DistanceX", -1, 1, 0, 3, 249.525403))
sketch4.addConstraint(Sketcher.Constraint("DistanceY", -1, 1, 0, 3, 49.810474))
pocket3 = doc.addObject("PartDesign::Pocket", "Pocket002")
body.addObject(pocket3)
pocket3.Profile = sketch4
pocket3.Type = "ThroughAll"

doc.recompute()
